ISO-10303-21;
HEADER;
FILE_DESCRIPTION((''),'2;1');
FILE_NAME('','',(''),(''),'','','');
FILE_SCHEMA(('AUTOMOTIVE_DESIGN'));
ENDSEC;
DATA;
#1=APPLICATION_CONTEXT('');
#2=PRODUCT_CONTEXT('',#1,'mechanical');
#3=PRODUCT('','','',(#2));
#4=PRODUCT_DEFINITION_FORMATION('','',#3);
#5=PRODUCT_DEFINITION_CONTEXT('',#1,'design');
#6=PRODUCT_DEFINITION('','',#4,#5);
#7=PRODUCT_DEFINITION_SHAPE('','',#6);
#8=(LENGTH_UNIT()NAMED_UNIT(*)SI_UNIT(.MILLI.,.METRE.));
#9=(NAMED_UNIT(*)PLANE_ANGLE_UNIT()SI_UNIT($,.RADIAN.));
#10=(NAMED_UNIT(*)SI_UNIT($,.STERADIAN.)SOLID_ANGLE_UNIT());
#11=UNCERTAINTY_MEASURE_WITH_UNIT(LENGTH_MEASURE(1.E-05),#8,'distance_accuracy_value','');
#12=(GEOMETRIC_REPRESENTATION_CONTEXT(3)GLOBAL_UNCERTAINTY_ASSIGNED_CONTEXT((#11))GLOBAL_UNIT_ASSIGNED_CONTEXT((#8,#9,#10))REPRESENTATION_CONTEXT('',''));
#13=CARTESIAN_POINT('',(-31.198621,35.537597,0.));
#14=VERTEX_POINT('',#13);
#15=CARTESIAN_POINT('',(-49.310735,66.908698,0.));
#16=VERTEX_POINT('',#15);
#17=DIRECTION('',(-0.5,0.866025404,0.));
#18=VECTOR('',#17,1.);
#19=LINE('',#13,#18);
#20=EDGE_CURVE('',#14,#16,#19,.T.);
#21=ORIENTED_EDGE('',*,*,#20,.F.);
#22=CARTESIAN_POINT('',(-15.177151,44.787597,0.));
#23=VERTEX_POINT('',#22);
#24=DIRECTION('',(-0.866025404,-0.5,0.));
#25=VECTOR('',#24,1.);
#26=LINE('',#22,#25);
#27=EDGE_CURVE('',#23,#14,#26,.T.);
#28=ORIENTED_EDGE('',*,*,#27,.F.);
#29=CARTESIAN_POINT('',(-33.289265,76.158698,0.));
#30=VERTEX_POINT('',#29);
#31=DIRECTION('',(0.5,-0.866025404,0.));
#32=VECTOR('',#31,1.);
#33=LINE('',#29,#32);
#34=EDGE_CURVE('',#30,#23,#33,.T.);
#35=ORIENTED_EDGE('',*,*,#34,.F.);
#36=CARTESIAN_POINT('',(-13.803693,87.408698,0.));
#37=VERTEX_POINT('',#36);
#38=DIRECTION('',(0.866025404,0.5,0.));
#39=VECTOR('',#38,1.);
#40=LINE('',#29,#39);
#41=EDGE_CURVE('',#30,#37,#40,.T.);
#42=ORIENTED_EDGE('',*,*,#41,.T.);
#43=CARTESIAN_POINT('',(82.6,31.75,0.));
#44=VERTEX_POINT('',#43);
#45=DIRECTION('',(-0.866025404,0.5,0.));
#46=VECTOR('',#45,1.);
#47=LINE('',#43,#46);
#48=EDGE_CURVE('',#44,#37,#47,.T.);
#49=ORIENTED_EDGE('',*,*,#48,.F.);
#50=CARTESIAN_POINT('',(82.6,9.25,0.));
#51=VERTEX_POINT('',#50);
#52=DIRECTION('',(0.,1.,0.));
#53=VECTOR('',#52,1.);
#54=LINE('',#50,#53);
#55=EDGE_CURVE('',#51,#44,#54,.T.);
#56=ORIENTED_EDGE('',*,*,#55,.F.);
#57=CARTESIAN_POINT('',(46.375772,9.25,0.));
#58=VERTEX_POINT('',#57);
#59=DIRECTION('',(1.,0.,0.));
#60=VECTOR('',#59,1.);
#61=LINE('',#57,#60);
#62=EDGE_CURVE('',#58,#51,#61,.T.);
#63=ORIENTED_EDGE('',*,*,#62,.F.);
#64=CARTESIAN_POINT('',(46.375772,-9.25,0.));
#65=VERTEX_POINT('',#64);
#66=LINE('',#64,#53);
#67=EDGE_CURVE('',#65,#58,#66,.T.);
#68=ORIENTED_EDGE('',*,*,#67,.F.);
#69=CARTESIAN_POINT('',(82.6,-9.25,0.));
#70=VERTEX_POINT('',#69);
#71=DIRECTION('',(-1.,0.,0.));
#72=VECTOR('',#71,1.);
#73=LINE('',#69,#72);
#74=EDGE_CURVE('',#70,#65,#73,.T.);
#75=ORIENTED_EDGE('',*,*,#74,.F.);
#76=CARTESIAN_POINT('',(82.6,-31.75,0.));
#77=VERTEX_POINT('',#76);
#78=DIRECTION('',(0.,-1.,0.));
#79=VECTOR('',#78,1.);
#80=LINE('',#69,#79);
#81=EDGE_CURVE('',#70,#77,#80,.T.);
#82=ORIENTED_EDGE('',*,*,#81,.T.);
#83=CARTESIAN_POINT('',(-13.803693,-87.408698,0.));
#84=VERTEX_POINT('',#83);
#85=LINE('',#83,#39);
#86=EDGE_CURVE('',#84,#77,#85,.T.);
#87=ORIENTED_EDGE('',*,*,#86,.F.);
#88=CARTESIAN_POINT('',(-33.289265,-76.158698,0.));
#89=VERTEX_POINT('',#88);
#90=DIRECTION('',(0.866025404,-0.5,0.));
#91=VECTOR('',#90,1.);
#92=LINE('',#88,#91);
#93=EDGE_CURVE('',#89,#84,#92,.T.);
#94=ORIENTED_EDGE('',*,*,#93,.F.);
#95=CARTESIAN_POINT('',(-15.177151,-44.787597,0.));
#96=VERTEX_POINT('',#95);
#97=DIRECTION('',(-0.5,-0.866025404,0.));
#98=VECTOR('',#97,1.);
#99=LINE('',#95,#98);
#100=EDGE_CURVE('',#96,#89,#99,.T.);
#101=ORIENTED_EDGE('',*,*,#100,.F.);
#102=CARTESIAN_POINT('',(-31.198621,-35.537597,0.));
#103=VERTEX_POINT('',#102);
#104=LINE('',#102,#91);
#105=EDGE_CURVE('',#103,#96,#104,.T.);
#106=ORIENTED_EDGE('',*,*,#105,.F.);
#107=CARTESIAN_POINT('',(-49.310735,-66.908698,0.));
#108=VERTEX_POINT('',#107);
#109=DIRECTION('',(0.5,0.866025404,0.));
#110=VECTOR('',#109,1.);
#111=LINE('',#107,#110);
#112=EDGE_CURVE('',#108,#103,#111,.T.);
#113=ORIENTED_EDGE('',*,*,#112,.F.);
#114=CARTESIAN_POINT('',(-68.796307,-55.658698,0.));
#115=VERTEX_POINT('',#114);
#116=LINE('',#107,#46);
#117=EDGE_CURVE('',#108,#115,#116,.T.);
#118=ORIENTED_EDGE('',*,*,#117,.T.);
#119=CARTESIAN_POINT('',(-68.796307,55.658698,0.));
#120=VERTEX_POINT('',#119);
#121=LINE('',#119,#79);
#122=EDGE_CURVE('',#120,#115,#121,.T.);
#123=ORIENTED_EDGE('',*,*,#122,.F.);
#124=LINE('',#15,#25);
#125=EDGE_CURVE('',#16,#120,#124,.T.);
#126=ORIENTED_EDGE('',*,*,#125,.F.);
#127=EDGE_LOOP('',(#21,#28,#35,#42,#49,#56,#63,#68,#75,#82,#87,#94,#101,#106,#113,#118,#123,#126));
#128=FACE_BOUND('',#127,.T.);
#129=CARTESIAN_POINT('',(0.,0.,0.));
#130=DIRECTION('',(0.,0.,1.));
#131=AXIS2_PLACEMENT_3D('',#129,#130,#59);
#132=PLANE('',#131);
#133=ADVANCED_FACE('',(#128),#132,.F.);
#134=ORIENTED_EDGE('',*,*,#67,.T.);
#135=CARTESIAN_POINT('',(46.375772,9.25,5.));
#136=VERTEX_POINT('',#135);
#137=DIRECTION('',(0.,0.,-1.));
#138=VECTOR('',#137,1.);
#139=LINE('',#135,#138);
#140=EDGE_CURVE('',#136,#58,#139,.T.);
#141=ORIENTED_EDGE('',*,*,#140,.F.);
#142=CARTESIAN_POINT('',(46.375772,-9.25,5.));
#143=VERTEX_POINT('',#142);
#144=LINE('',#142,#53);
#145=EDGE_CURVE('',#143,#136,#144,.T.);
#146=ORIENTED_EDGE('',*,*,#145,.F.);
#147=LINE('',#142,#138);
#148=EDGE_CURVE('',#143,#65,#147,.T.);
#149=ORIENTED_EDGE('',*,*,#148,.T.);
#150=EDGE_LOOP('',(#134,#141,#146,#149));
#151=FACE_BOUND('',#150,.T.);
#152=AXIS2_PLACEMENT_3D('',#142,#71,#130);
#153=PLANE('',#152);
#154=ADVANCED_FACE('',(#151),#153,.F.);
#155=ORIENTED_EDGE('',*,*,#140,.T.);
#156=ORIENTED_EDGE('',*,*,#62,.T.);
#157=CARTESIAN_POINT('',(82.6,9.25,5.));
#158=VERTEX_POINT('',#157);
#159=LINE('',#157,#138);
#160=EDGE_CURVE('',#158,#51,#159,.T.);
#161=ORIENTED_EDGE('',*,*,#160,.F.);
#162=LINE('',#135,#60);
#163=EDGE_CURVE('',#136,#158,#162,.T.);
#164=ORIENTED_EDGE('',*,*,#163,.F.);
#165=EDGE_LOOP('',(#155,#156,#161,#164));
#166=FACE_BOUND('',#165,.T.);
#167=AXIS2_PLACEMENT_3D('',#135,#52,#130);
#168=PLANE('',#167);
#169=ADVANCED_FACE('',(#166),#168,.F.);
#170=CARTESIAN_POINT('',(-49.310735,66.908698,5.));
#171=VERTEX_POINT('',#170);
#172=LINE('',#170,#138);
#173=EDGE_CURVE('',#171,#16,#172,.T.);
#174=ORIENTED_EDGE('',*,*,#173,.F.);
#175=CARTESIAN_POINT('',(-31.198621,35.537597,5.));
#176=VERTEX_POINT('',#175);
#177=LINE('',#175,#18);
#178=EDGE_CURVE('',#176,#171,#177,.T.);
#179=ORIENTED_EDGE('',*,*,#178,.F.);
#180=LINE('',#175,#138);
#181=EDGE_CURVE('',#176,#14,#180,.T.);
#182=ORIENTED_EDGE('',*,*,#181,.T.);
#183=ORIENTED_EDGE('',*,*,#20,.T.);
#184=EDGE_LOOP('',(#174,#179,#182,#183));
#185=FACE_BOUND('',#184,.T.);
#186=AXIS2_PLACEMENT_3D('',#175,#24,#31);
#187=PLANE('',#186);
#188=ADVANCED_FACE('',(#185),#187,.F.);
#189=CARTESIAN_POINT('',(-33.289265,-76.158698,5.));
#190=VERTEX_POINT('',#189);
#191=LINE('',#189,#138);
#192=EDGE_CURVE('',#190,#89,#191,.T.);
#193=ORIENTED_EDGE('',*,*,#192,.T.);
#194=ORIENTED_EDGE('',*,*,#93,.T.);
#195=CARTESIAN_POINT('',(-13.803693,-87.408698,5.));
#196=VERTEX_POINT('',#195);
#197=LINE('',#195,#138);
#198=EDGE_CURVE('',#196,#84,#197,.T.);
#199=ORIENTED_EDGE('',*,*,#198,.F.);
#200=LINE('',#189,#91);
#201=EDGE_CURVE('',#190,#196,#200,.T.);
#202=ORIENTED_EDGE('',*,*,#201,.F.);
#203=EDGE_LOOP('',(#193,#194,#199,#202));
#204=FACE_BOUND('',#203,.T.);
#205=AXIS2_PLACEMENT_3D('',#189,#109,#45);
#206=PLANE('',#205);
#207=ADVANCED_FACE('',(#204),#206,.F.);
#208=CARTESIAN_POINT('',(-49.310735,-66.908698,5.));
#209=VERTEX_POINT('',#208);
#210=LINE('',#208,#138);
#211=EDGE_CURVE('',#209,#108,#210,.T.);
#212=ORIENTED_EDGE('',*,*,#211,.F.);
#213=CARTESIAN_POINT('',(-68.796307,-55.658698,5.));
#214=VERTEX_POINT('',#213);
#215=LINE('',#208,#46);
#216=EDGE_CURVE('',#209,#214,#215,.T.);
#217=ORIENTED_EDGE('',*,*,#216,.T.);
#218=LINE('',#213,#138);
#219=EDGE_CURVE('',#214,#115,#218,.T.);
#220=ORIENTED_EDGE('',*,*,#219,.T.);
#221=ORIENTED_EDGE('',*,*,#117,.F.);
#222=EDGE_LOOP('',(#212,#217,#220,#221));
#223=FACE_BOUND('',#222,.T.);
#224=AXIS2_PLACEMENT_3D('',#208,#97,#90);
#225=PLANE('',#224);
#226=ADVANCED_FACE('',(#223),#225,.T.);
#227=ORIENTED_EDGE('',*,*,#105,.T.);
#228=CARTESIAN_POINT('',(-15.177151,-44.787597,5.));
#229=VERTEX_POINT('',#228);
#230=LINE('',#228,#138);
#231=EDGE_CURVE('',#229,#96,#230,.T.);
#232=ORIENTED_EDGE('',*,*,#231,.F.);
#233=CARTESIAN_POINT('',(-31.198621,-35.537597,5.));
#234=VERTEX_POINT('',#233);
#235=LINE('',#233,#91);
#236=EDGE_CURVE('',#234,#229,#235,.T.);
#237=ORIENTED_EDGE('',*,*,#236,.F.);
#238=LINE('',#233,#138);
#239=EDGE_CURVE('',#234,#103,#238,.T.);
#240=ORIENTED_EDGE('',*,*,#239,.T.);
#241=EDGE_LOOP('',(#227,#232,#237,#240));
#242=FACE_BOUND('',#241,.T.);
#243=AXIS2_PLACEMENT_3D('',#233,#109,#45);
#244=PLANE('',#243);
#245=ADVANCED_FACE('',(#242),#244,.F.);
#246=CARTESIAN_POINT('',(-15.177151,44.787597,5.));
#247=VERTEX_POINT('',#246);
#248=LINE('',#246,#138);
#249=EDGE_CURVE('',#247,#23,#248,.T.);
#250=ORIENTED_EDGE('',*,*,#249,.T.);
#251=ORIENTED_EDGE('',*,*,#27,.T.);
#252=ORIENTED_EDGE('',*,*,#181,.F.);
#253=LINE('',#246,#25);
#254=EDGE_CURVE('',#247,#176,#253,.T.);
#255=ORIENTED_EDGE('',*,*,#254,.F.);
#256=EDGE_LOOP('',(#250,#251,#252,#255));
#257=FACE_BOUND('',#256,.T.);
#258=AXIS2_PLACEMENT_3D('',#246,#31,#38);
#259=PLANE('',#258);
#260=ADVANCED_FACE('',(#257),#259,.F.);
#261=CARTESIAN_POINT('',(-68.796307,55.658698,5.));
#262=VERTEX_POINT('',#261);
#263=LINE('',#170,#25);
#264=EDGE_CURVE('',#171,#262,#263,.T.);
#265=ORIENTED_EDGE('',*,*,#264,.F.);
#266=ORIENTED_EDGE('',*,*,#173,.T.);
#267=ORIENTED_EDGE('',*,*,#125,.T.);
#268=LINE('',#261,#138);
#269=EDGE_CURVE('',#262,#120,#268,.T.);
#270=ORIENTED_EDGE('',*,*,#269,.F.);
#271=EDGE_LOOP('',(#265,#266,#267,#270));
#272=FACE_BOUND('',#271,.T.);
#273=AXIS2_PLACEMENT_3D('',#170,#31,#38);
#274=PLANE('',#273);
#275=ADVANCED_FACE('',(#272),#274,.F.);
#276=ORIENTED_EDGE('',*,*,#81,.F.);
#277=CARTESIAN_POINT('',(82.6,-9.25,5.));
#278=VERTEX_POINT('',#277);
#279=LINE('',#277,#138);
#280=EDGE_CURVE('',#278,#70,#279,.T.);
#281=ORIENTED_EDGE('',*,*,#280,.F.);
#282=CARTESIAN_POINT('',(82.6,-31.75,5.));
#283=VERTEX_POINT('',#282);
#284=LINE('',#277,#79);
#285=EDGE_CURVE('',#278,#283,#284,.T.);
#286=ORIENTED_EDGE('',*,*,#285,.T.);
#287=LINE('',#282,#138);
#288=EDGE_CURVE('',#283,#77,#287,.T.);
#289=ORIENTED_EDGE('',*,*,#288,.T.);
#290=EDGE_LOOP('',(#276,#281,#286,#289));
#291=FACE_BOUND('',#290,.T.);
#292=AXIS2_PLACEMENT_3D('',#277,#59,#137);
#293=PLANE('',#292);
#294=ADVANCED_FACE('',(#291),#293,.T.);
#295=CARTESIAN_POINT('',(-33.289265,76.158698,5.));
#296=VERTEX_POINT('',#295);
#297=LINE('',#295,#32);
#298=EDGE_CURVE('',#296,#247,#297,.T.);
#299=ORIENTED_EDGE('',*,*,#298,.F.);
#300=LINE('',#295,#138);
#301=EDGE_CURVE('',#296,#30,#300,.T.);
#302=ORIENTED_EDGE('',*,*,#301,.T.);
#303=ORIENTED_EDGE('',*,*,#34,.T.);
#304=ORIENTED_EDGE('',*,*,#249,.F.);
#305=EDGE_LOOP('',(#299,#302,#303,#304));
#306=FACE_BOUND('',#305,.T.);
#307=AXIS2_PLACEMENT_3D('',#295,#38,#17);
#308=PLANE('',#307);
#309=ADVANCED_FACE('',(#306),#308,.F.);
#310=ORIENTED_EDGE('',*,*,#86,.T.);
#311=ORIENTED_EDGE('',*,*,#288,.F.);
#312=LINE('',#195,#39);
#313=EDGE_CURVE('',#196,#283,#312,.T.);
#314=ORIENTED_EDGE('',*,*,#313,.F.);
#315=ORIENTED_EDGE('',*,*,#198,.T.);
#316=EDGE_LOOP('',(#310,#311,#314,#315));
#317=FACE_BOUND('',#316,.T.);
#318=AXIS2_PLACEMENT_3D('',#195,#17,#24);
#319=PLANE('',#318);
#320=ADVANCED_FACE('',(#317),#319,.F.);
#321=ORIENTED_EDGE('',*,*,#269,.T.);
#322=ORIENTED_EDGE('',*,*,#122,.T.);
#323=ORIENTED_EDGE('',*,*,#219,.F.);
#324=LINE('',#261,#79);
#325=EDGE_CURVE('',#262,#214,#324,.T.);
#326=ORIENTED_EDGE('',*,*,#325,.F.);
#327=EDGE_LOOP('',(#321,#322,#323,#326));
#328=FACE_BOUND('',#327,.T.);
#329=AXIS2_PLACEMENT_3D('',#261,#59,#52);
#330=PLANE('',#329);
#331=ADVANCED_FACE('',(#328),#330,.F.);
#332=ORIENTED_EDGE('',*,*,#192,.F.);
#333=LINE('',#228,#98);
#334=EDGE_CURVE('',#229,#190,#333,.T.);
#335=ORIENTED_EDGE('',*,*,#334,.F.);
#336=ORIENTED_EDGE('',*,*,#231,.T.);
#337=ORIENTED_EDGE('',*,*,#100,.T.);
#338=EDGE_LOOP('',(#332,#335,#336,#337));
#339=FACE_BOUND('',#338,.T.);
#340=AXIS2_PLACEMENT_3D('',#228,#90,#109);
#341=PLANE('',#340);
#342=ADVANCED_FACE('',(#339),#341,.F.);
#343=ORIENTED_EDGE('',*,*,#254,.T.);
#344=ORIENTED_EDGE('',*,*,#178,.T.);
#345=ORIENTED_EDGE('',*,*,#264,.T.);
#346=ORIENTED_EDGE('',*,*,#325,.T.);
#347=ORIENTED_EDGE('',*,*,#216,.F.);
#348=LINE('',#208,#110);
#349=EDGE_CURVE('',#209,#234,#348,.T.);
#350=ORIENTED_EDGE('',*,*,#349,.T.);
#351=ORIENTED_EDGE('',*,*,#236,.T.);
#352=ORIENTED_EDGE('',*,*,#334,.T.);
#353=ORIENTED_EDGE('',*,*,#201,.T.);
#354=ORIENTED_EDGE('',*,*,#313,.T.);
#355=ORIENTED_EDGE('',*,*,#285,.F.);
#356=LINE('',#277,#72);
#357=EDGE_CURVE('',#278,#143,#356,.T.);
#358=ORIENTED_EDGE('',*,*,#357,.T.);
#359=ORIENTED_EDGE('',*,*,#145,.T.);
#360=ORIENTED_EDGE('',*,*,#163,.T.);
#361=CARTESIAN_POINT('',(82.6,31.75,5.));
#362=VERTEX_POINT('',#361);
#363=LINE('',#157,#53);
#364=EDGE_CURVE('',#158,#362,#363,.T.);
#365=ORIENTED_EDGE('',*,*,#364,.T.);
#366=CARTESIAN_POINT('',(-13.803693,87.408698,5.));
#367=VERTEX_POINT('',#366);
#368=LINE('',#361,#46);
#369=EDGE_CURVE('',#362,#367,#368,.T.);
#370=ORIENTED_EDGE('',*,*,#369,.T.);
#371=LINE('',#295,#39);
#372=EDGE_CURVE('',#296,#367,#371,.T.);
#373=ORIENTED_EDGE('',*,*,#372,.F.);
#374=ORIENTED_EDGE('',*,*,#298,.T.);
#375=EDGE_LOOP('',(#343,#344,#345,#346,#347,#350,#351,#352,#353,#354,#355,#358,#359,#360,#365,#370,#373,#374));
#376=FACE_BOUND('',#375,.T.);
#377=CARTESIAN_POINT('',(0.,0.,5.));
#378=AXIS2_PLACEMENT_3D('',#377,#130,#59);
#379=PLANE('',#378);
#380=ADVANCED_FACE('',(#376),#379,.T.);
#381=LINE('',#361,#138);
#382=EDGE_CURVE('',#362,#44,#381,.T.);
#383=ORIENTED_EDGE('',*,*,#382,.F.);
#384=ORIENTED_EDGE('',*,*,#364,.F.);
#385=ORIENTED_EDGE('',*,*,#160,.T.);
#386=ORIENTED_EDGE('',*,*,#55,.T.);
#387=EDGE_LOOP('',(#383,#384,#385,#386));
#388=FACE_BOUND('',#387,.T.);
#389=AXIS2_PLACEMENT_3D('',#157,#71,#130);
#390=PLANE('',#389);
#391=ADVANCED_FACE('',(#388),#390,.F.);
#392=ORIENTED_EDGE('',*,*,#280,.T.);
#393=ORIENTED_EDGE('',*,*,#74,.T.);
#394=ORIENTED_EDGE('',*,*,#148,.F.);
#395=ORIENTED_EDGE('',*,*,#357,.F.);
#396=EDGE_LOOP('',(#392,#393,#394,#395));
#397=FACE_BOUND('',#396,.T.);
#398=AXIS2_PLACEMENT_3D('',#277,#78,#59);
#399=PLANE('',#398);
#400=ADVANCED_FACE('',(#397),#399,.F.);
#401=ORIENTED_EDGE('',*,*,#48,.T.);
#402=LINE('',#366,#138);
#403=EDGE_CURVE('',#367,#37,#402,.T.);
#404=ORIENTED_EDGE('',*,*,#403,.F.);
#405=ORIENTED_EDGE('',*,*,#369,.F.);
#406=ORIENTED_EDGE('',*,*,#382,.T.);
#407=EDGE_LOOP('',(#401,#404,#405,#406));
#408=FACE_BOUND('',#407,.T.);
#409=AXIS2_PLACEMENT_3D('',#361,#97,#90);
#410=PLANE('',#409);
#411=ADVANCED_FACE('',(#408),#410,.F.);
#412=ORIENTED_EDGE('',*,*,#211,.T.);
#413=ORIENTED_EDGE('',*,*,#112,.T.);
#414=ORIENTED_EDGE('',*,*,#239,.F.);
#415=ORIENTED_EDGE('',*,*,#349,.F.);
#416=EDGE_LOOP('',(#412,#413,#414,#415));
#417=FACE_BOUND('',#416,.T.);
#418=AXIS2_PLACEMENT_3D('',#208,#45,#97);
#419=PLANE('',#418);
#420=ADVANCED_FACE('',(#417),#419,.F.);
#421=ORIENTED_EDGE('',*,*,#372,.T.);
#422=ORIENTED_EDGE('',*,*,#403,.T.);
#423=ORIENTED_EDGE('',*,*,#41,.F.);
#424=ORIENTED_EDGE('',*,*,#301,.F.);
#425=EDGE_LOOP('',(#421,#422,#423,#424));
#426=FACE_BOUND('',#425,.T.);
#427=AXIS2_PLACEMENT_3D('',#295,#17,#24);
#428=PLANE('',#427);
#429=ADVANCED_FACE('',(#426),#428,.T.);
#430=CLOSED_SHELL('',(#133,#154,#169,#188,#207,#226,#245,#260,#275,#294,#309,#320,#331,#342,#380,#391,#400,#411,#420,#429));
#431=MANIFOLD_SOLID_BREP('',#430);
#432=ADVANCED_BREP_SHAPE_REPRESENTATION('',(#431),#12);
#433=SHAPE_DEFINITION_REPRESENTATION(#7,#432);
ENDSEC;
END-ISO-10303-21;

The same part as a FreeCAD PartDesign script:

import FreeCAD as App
import Part
import Sketcher
from FreeCAD import Vector
Q = App.Units.Quantity

doc = App.newDocument("Part")
params = doc.addObject("Spreadsheet::Sheet", "Params")
for row, (alias, value) in enumerate([
    ("sketch1_height", "18.5 mm"),
    ("sketch1_height2", "22.5 mm"),
    ("sketch1_length", "22.5 mm"),
    ("sketch1_length2", "18.5 mm"),
    ("pad1_length", "5 mm"),
], start=1):
    params.set(f"A{row}", alias)
    params.set(f"B{row}", "=" + value)
    params.setAlias(f"B{row}", alias)

body = doc.addObject("PartDesign::Body", "Body")

sketch1 = body.newObject("Sketcher::SketchObject", "Sketch")
sketch1.AttachmentSupport = (doc.getObject("XY_Plane"), [""])
sketch1.MapMode = "FlatFace"
sketch1.addGeometry([
    Part.LineSegment(Vector(82.6, -9.25, 0), Vector(46.375772, -9.25, 0)),
    Part.LineSegment(Vector(46.375772, -9.25, 0), Vector(46.375772, 9.25, 0)),
    Part.LineSegment(Vector(46.375772, 9.25, 0), Vector(82.6, 9.25, 0)),
    Part.LineSegment(Vector(82.6, 9.25, 0), Vector(82.6, 31.75, 0)),
    Part.LineSegment(Vector(82.6, 31.75, 0), Vector(-13.803693, 87.408698, 0)),
    Part.LineSegment(Vector(-13.803693, 87.408698, 0), Vector(-33.289265, 76.158698, 0)),
    Part.LineSegment(Vector(-33.289265, 76.158698, 0), Vector(-15.177151, 44.787597, 0)),
    Part.LineSegment(Vector(-15.177151, 44.787597, 0), Vector(-31.198621, 35.537597, 0)),
    Part.LineSegment(Vector(-31.198621, 35.537597, 0), Vector(-49.310735, 66.908698, 0)),
    Part.LineSegment(Vector(-49.310735, 66.908698, 0), Vector(-68.796307, 55.658698, 0)),
    Part.LineSegment(Vector(-68.796307, 55.658698, 0), Vector(-68.796307, -55.658698, 0)),
    Part.LineSegment(Vector(-68.796307, -55.658698, 0), Vector(-49.310735, -66.908698, 0)),
    Part.LineSegment(Vector(-49.310735, -66.908698, 0), Vector(-31.198621, -35.537597, 0)),
    Part.LineSegment(Vector(-31.198621, -35.537597, 0), Vector(-15.177151, -44.787597, 0)),
    Part.LineSegment(Vector(-15.177151, -44.787597, 0), Vector(-33.289265, -76.158698, 0)),
    Part.LineSegment(Vector(-33.289265, -76.158698, 0), Vector(-13.803693, -87.408698, 0)),
    Part.LineSegment(Vector(-13.803693, -87.408698, 0), Vector(82.6, -31.75, 0)),
    Part.LineSegment(Vector(82.6, -31.75, 0), Vector(82.6, -9.25, 0)),
], False)
sketch1.addConstraint([
    Sketcher.Constraint("Coincident", 0, 2, 1, 1),
    Sketcher.Constraint("Coincident", 1, 2, 2, 1),
    Sketcher.Constraint("Coincident", 2, 2, 3, 1),
    Sketcher.Constraint("Coincident", 3, 2, 4, 1),
    Sketcher.Constraint("Coincident", 4, 2, 5, 1),
    Sketcher.Constraint("Coincident", 5, 2, 6, 1),
    Sketcher.Constraint("Coincident", 6, 2, 7, 1),
    Sketcher.Constraint("Coincident", 7, 2, 8, 1),
    Sketcher.Constraint("Coincident", 8, 2, 9, 1),
    Sketcher.Constraint("Coincident", 9, 2, 10, 1),
    Sketcher.Constraint("Coincident", 10, 2, 11, 1),
    Sketcher.Constraint("Coincident", 11, 2, 12, 1),
    Sketcher.Constraint("Coincident", 12, 2, 13, 1),
    Sketcher.Constraint("Coincident", 13, 2, 14, 1),
    Sketcher.Constraint("Coincident", 14, 2, 15, 1),
    Sketcher.Constraint("Coincident", 15, 2, 16, 1),
    Sketcher.Constraint("Coincident", 16, 2, 17, 1),
    Sketcher.Constraint("Coincident", 17, 2, 0, 1),
    Sketcher.Constraint("Horizontal", 0),
    Sketcher.Constraint("Vertical", 1),
    Sketcher.Constraint("Horizontal", 2),
    Sketcher.Constraint("Vertical", 3),
    Sketcher.Constraint("Vertical", 10),
    Sketcher.Constraint("Vertical", 17),
    Sketcher.Constraint("Symmetric", 8, 2, 11, 2, -1),
    Sketcher.Constraint("Symmetric", 7, 2, 12, 2, -1),
    Sketcher.Constraint("Symmetric", 6, 2, 13, 2, -1),
    Sketcher.Constraint("Symmetric", 5, 2, 14, 2, -1),
    Sketcher.Constraint("Symmetric", 4, 2, 15, 2, -1),
    Sketcher.Constraint("Symmetric", 3, 2, 16, 2, -1),
    Sketcher.Constraint("Perpendicular", 5, 6),
    Sketcher.Constraint("Perpendicular", 6, 7),
    Sketcher.Constraint("Perpendicular", 7, 8),
    Sketcher.Constraint("Perpendicular", 8, 9),
    Sketcher.Constraint("Parallel", 4, 11),
    Sketcher.Constraint("Perpendicular", 11, 12),
    Sketcher.Constraint("Equal", 3, 17),
    Sketcher.Constraint("Equal", 6, 8),
    Sketcher.Constraint("Equal", 5, 9),
    Sketcher.Constraint("Angle", 4, Q("150 deg")),
    Sketcher.Constraint("DistanceY", 1, 1, 1, 2, 18.5),
    Sketcher.Constraint("DistanceY", 3, 1, 3, 2, 22.5),
    Sketcher.Constraint("Distance", 5, 22.5),
    Sketcher.Constraint("Distance", 7, 18.5),
    Sketcher.Constraint("DistanceX", -1, 1, 2, 2, 82.6),
    Sketcher.Constraint("DistanceY", -1, 1, 4, 2, 87.408698),
    Sketcher.Constraint("DistanceY", 6, 2, 5, 2, 31.371102),
    Sketcher.Constraint("DistanceX", 0, 2, 0, 1, 36.224228),
])
sketch1.setExpression("Constraints[40]", "Params.sketch1_height")
sketch1.setExpression("Constraints[41]", "Params.sketch1_height2")
sketch1.setExpression("Constraints[42]", "Params.sketch1_length")
sketch1.setExpression("Constraints[43]", "Params.sketch1_length2")
pad1 = body.newObject("PartDesign::Pad", "Pad")
pad1.Profile = sketch1
pad1.setExpression("Length", "Params.pad1_length")

doc.recompute()
